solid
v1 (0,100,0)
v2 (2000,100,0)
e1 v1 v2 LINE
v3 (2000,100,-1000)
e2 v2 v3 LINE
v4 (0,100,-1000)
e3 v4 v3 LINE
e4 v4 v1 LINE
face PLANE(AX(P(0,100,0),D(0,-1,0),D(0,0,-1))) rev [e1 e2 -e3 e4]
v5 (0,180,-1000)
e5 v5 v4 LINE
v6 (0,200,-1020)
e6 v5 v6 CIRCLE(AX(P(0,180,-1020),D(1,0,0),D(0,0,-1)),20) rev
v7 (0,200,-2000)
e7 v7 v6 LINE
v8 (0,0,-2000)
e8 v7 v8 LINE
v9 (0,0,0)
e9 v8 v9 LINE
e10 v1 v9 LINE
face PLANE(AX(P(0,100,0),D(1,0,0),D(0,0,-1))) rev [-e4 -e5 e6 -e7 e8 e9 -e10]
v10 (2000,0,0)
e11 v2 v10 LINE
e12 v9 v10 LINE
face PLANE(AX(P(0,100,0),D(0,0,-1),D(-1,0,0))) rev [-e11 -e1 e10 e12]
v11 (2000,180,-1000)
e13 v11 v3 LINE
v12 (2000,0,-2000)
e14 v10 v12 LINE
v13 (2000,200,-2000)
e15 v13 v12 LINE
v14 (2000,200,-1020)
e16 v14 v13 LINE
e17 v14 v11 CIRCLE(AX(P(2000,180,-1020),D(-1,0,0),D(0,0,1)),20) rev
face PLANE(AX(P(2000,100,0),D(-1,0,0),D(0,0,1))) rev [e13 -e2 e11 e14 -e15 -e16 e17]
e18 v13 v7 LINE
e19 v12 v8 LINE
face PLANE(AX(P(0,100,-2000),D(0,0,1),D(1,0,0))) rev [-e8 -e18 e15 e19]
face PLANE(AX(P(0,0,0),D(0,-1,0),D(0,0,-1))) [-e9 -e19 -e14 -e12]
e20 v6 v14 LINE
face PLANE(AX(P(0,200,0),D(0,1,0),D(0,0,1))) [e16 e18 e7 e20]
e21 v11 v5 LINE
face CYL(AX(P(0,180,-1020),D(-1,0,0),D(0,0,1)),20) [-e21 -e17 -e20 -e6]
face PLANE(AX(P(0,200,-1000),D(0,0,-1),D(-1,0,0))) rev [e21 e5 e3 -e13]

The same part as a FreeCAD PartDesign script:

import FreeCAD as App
import Part
import Sketcher

V = App.Vector
Q = App.Units.Quantity


def edges_at(feature, points):
    """Names of the edges that pass closest to the given points."""
    edges = feature.Shape.Edges
    near = lambda p: min(range(len(edges)), key=lambda i: edges[i].distToShape(Part.Vertex(*p))[0])
    return sorted({f"Edge{near(p) + 1}" for p in points})


def add_polygon(sketch, points):
    """Adds a closed chain of lines whose ends are joined by coincident constraints."""
    first, n = sketch.GeometryCount, len(points)
    for a, b in zip(points, points[1:] + points[:1]):
        sketch.addGeometry(Part.LineSegment(App.Vector(*a, 0), App.Vector(*b, 0)), False)
    for i in range(n):
        sketch.addConstraint(Sketcher.Constraint("Coincident", first + i, 2, first + (i + 1) % n, 1))

doc = App.newDocument("Part")
body = doc.addObject("PartDesign::Body", "Body")

sketch1 = body.newObject("Sketcher::SketchObject", "Sketch")
sketch1.AttachmentSupport = (doc.getObject("XZ_Plane"), [""])
sketch1.MapMode = "FlatFace"
add_polygon(sketch1, [(0, -2000), (0, 0), (2000, 0), (2000, -2000)])
sketch1.addConstraint([
    Sketcher.Constraint("Vertical", 0),
    Sketcher.Constraint("Horizontal", 1),
    Sketcher.Constraint("Vertical", 2),
    Sketcher.Constraint("Horizontal", 3),
    Sketcher.Constraint("Coincident", 0, 2, -1, 1),
    Sketcher.Constraint("Equal", 3, 0),
    Sketcher.Constraint("DistanceX", 1, 1, 1, 2, Q("2000 mm")),
])
pad1 = body.newObject("PartDesign::Pad", "Pad")
pad1.Profile = sketch1
pad1.Length = 100
pad1.Reversed = True

sketch2 = body.newObject("Sketcher::SketchObject", "Sketch001")
sketch2.AttachmentSupport = (doc.getObject("XZ_Plane"), [""])
sketch2.MapMode = "FlatFace"
sketch2.AttachmentOffset = App.Placement(V(0, 0, -100), App.Rotation())
add_polygon(sketch2, [(0, -2000), (0, -1000), (2000, -1000), (2000, -2000)])
sketch2.addConstraint([
    Sketcher.Constraint("Vertical", 0),
    Sketcher.Constraint("Horizontal", 1),
    Sketcher.Constraint("Vertical", 2),
    Sketcher.Constraint("Horizontal", 3),
    Sketcher.Constraint("PointOnObject", 0, 2, -2),
    Sketcher.Constraint("DistanceX", 1, 1, 1, 2, Q("2000 mm")),
    Sketcher.Constraint("DistanceY", 0, 1, 0, 2, Q("1000 mm")),
    Sketcher.Constraint("DistanceY", 0, 2, -1, 1, Q("1000 mm")),
])
pad2 = body.newObject("PartDesign::Pad", "Pad001")
pad2.Profile = sketch2
pad2.Length = 100
pad2.Reversed = True
doc.recompute()

fillet = body.newObject("PartDesign::Fillet", "Fillet")
fillet.Base = (pad2, edges_at(pad2, [(1000, 200, -1000)]))
fillet.Radius = 20

doc.recompute()
